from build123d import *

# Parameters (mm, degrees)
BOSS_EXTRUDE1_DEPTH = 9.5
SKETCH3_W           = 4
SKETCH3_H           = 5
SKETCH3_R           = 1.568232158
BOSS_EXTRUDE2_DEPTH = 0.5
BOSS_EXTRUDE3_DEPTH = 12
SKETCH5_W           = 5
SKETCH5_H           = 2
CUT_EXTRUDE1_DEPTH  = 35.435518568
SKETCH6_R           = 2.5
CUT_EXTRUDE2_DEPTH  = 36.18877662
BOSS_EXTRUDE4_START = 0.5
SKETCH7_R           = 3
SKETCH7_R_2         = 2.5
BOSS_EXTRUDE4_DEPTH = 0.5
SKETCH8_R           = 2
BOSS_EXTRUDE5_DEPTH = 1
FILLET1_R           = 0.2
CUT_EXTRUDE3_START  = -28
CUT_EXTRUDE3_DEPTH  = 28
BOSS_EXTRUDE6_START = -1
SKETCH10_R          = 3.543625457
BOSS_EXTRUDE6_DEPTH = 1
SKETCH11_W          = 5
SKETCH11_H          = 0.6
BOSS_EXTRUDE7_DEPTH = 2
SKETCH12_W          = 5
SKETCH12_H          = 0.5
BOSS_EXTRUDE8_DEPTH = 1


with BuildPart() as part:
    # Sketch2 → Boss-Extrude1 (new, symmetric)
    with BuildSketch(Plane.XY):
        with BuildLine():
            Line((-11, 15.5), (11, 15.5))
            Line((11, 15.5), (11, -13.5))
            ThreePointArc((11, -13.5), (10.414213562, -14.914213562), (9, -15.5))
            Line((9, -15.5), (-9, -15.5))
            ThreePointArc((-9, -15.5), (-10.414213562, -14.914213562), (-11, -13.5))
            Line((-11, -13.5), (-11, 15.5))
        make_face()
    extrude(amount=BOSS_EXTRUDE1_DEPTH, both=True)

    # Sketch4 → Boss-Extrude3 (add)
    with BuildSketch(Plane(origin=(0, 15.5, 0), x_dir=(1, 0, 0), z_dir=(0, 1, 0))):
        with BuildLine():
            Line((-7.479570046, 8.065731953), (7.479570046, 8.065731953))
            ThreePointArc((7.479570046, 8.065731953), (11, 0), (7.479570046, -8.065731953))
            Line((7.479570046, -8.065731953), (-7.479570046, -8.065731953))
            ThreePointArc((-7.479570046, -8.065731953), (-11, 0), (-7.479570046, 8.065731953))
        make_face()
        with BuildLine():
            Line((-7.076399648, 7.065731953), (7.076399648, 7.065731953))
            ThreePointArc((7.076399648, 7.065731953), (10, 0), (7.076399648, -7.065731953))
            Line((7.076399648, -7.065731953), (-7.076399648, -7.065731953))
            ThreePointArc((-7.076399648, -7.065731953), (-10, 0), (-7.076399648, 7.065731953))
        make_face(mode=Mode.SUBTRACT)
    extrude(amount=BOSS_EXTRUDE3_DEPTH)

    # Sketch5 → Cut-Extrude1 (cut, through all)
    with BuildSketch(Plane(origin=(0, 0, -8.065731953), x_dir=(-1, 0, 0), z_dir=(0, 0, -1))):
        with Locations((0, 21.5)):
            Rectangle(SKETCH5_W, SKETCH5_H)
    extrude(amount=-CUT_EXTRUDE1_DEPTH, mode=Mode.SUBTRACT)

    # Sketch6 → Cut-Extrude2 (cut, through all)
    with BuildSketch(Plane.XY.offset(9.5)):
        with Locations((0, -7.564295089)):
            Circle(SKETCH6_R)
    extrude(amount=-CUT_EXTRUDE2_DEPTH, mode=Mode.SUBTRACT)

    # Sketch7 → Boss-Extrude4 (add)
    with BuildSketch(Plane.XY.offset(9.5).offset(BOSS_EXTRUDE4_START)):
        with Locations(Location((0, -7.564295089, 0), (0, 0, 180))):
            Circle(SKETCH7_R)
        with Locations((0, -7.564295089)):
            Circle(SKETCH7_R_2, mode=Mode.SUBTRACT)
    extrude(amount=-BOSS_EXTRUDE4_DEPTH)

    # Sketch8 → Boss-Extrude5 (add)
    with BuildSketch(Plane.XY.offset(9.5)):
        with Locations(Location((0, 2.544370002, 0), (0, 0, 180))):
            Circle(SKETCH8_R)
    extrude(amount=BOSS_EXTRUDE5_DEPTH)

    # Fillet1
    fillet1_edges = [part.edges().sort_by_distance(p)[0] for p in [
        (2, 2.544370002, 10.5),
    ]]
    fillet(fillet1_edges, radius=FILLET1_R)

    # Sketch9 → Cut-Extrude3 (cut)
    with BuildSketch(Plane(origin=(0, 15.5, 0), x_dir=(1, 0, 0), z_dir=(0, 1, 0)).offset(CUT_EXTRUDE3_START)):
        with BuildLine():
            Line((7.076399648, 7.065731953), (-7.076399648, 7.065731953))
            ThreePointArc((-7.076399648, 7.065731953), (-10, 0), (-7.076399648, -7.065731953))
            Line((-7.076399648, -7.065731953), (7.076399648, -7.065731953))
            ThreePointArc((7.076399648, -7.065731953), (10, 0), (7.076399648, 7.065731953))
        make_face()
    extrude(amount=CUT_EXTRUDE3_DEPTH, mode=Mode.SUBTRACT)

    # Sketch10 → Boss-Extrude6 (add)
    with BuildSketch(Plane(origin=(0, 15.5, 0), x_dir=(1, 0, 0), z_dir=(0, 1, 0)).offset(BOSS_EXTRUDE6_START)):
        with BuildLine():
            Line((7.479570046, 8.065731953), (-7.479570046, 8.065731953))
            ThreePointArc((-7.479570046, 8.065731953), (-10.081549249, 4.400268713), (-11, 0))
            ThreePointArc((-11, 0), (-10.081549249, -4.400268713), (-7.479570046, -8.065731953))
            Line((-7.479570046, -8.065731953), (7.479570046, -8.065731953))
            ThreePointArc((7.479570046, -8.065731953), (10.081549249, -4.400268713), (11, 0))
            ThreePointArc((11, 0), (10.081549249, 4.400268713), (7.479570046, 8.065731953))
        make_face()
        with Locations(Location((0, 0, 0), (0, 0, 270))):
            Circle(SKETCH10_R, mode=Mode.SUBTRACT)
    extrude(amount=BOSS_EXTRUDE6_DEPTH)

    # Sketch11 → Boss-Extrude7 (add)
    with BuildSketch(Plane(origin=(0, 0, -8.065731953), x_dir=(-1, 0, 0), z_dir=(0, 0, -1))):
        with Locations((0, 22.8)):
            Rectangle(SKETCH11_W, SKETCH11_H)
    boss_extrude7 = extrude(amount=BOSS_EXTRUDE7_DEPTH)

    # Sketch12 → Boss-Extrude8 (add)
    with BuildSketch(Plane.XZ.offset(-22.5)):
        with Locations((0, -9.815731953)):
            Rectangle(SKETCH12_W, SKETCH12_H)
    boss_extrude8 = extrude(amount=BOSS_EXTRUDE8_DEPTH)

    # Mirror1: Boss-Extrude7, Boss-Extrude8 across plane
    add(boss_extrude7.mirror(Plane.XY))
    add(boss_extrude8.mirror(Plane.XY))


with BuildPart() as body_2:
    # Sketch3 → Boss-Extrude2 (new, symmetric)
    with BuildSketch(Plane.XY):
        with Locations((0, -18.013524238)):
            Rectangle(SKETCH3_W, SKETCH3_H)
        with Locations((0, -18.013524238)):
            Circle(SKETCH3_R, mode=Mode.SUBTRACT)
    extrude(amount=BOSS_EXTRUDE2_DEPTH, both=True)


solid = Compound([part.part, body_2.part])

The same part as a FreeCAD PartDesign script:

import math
import FreeCAD as App
import Part
import Sketcher

V = App.Vector


def edges_at(feature, points):
    """Names of the edges that pass closest to the given points."""
    edges = feature.Shape.Edges
    near = lambda p: min(range(len(edges)), key=lambda i: edges[i].distToShape(Part.Vertex(*p))[0])
    return sorted({f"Edge{near(p) + 1}" for p in points})

doc = App.newDocument("Part")
body = doc.addObject("PartDesign::Body", "Body")

# Sketch on XY plane
sketch1 = body.newObject("Sketcher::SketchObject", "Sketch")
sketch1.AttachmentSupport = (doc.getObject("XY_Plane"), [""])
sketch1.MapMode = "FlatFace"
sketch1.addGeometry([
    Part.LineSegment(V(11, 15.5, 0), V(-11, 15.5, 0)),  # 0
    Part.LineSegment(V(-11, 15.5, 0), V(-11, -13.5, 0)),  # 1
    Part.ArcOfCircle(Part.Circle(V(-9, -13.5, 0), V(0, 0, 1), 2), math.radians(-180), math.radians(-90)),  # 2
    Part.LineSegment(V(-9, -15.5, 0), V(9, -15.5, 0)),  # 3
    Part.ArcOfCircle(Part.Circle(V(9, -13.5, 0), V(0, 0, 1), 2), math.radians(-90), math.radians(0)),  # 4
    Part.LineSegment(V(11, -13.5, 0), V(11, 15.5, 0)),  # 5
], False)
sketch1.addConstraint([
    Sketcher.Constraint("Coincident", 0, 2, 1, 1),
    Sketcher.Constraint("Tangent", 1, 2, 2, 1),
    Sketcher.Constraint("Tangent", 2, 2, 3, 1),
    Sketcher.Constraint("Tangent", 3, 2, 4, 1),
    Sketcher.Constraint("Tangent", 4, 2, 5, 1),
    Sketcher.Constraint("Coincident", 5, 2, 0, 1),
    Sketcher.Constraint("Horizontal", 0),
    Sketcher.Constraint("Vertical", 1),
    Sketcher.Constraint("Horizontal", 3),
    Sketcher.Constraint("Vertical", 5),
    Sketcher.Constraint("Equal", 2, 4),
    Sketcher.Constraint("Radius", 2, 2.0),
    Sketcher.Constraint("DistanceX", 0, 2, 0, 1, 22.0),
    Sketcher.Constraint("DistanceY", 1, 2, 1, 1, 29.0),
    Sketcher.Constraint("DistanceX", 2, 3, -1, 1, 9.0),
    Sketcher.Constraint("DistanceY", 2, 3, -1, 1, 13.5),
])
pad1 = body.newObject("PartDesign::Pad", "Pad")
pad1.Profile = sketch1
pad1.Length = 19
pad1.Midplane = True

# Sketch on XZ plane
sketch2 = body.newObject("Sketcher::SketchObject", "Sketch001")
sketch2.AttachmentSupport = (doc.getObject("XZ_Plane"), [""])
sketch2.MapMode = "FlatFace"
sketch2.AttachmentOffset = App.Placement(V(0, 0, -15.5), App.Rotation())
sketch2.addGeometry([
    Part.LineSegment(V(7.47957, -8.065732, 0), V(-7.47957, -8.065732, 0)),  # 0
    Part.ArcOfCircle(Part.Circle(V(0, 0, 0), V(0, 0, 1), 11), math.radians(132.840589), math.radians(227.159411)),  # 1
    Part.LineSegment(V(-7.47957, 8.065732, 0), V(7.47957, 8.065732, 0)),  # 2
    Part.ArcOfCircle(Part.Circle(V(0, 0, 0), V(0, 0, 1), 11), math.radians(-47.159411), math.radians(47.159411)),  # 3
    Part.LineSegment(V(-7.0764, -7.065732, 0), V(7.0764, -7.065732, 0)),  # 4
    Part.ArcOfCircle(Part.Circle(V(0, 0, 0), V(0, 0, 1), 10), math.radians(-44.956781), math.radians(44.956781)),  # 5
    Part.LineSegment(V(7.0764, 7.065732, 0), V(-7.0764, 7.065732, 0)),  # 6
    Part.ArcOfCircle(Part.Circle(V(0, 0, 0), V(0, 0, 1), 10), math.radians(135.043219), math.radians(224.956781)),  # 7
], False)
sketch2.addConstraint([
    Sketcher.Constraint("Coincident", 0, 2, 1, 2),
    Sketcher.Constraint("Coincident", 1, 1, 2, 1),
    Sketcher.Constraint("Coincident", 2, 2, 3, 2),
    Sketcher.Constraint("Coincident", 3, 1, 0, 1),
    Sketcher.Constraint("Coincident", 4, 2, 5, 1),
    Sketcher.Constraint("Coincident", 5, 2, 6, 1),
    Sketcher.Constraint("Coincident", 6, 2, 7, 1),
    Sketcher.Constraint("Coincident", 7, 2, 4, 1),
    Sketcher.Constraint("Horizontal", 0),
    Sketcher.Constraint("Horizontal", 2),
    Sketcher.Constraint("Horizontal", 4),
    Sketcher.Constraint("Horizontal", 6),
    Sketcher.Constraint("Coincident", 1, 3, -1, 1),
    Sketcher.Constraint("Coincident", 3, 3, -1, 1),
    Sketcher.Constraint("Coincident", 5, 3, -1, 1),
    Sketcher.Constraint("Coincident", 7, 3, -1, 1),
    Sketcher.Constraint("Equal", 1, 3),
    Sketcher.Constraint("Equal", 5, 7),
    Sketcher.Constraint("Vertical", 0, 2, 1, 1),
    Sketcher.Constraint("Vertical", 4, 2, 5, 2),
    Sketcher.Constraint("Radius", 1, 11.0),
    Sketcher.Constraint("Radius", 5, 10.0),
    Sketcher.Constraint("DistanceY", 3, 1, 4, 2, 1.0),
    Sketcher.Constraint("DistanceX", 4, 1, 4, 2, 14.152799),
])
pad2 = body.newObject("PartDesign::Pad", "Pad001")
pad2.Profile = sketch2
pad2.Length = 12
pad2.Reversed = True

# Sketch on XY plane
sketch3 = body.newObject("Sketcher::SketchObject", "Sketch002")
sketch3.AttachmentSupport = (doc.getObject("XY_Plane"), [""])
sketch3.MapMode = "FlatFace"
sketch3.AttachmentOffset = App.Placement(V(0, 0, -8.065732), App.Rotation())
sketch3.addGeometry([
    Part.LineSegment(V(2.5, 22.5, 0), V(2.5, 20.5, 0)),
    Part.LineSegment(V(2.5, 20.5, 0), V(-2.5, 20.5, 0)),
    Part.LineSegment(V(-2.5, 20.5, 0), V(-2.5, 22.5, 0)),
    Part.LineSegment(V(-2.5, 22.5, 0), V(2.5, 22.5, 0)),
], False)
sketch3.addConstraint([
    Sketcher.Constraint("Coincident", 0, 2, 1, 1),
    Sketcher.Constraint("Coincident", 1, 2, 2, 1),
    Sketcher.Constraint("Coincident", 2, 2, 3, 1),
    Sketcher.Constraint("Coincident", 3, 2, 0, 1),
    Sketcher.Constraint("Vertical", 0),
    Sketcher.Constraint("Horizontal", 1),
    Sketcher.Constraint("Vertical", 2),
    Sketcher.Constraint("Horizontal", 3),
    Sketcher.Constraint("DistanceX", 1, 2, 1, 1, 5.0),
    Sketcher.Constraint("DistanceY", 0, 2, 0, 1, 2.0),
    Sketcher.Constraint("DistanceX", -1, 1, 0, 2, 2.5),
    Sketcher.Constraint("DistanceY", -1, 1, 0, 2, 20.5),
])
pocket1 = body.newObject("PartDesign::Pocket", "Pocket")
pocket1.Profile = sketch3
pocket1.Type = "ThroughAll"
pocket1.Reversed = True

# Sketch on XY plane
sketch4 = body.newObject("Sketcher::SketchObject", "Sketch003")
sketch4.AttachmentSupport = (doc.getObject("XY_Plane"), [""])
sketch4.MapMode = "FlatFace"
sketch4.AttachmentOffset = App.Placement(V(0, 0, 9.5), App.Rotation())
sketch4.addGeometry(Part.Circle(V(0, -7.564295, 0), V(0, 0, 1), 2.5), False)
sketch4.addConstraint([
    Sketcher.Constraint("PointOnObject", 0, 3, -2),
    Sketcher.Constraint("Diameter", 0, 5.0),
    Sketcher.Constraint("DistanceY", 0, 3, -1, 1, 7.564295),
])
pocket2 = body.newObject("PartDesign::Pocket", "Pocket001")
pocket2.Profile = sketch4
pocket2.Type = "ThroughAll"

# Sketch on XY plane
sketch5 = body.newObject("Sketcher::SketchObject", "Sketch004")
sketch5.AttachmentSupport = (doc.getObject("XY_Plane"), [""])
sketch5.MapMode = "FlatFace"
sketch5.AttachmentOffset = App.Placement(V(0, 0, 10), App.Rotation())
sketch5.addGeometry([
    Part.Circle(V(0, -7.564295, 0), V(0, 0, 1), 3),
    Part.Circle(V(0, -7.564295, 0), V(0, 0, 1), 2.5),
], False)
sketch5.addConstraint([
    Sketcher.Constraint("Coincident", 1, 3, 0, 3),
    Sketcher.Constraint("PointOnObject", 0, 3, -2),
    Sketcher.Constraint("Diameter", 0, 6.0),
    Sketcher.Constraint("Diameter", 1, 5.0),
    Sketcher.Constraint("DistanceY", 0, 3, -1, 1, 7.564295),
])
pad3 = body.newObject("PartDesign::Pad", "Pad002")
pad3.Profile = sketch5
pad3.Length = 0.5
pad3.Reversed = True

# Sketch on XY plane
sketch6 = body.newObject("Sketcher::SketchObject", "Sketch005")
sketch6.AttachmentSupport = (doc.getObject("XY_Plane"), [""])
sketch6.MapMode = "FlatFace"
sketch6.AttachmentOffset = App.Placement(V(0, 0, 9.5), App.Rotation())
sketch6.addGeometry(Part.Circle(V(0, 2.54437, 0), V(0, 0, 1), 2), False)
sketch6.addConstraint([
    Sketcher.Constraint("PointOnObject", 0, 3, -2),
    Sketcher.Constraint("Diameter", 0, 4.0),
    Sketcher.Constraint("DistanceY", -1, 1, 0, 3, 2.54437),
])
pad4 = body.newObject("PartDesign::Pad", "Pad003")
pad4.Profile = sketch6
pad4.Length = 1
doc.recompute()

fillet = body.newObject("PartDesign::Fillet", "Fillet")
fillet.Base = (pad4, edges_at(pad4, [(2, 2.544, 10.5)]))
fillet.Radius = 0.2

# Sketch on XZ plane
sketch7 = body.newObject("Sketcher::SketchObject", "Sketch006")
sketch7.AttachmentSupport = (doc.getObject("XZ_Plane"), [""])
sketch7.MapMode = "FlatFace"
sketch7.AttachmentOffset = App.Placement(V(0, 0, 12.5), App.Rotation())
sketch7.addGeometry([
    Part.LineSegment(V(7.0764, -7.065732, 0), V(-7.0764, -7.065732, 0)),
    Part.ArcOfCircle(Part.Circle(V(0, 0, 0), V(0, 0, 1), 10), math.radians(135.043219), math.radians(224.956781)),
    Part.LineSegment(V(-7.0764, 7.065732, 0), V(7.0764, 7.065732, 0)),
    Part.ArcOfCircle(Part.Circle(V(0, 0, 0), V(0, 0, 1), 10), math.radians(-44.956781), math.radians(44.956781)),
], False)
sketch7.addConstraint([
    Sketcher.Constraint("Coincident", 0, 2, 1, 2),
    Sketcher.Constraint("Coincident", 1, 1, 2, 1),
    Sketcher.Constraint("Coincident", 2, 2, 3, 2),
    Sketcher.Constraint("Coincident", 3, 1, 0, 1),
    Sketcher.Constraint("Horizontal", 0),
    Sketcher.Constraint("Horizontal", 2),
    Sketcher.Constraint("Coincident", 1, 3, -1, 1),
    Sketcher.Constraint("Coincident", 3, 3, -1, 1),
    Sketcher.Constraint("Equal", 1, 3),
    Sketcher.Constraint("Vertical", 0, 2, 1, 1),
    Sketcher.Constraint("Radius", 1, 10.0),
    Sketcher.Constraint("DistanceX", 0, 2, 0, 1, 14.152799),
])
pocket3 = body.newObject("PartDesign::Pocket", "Pocket002")
pocket3.Profile = sketch7
pocket3.Length = 28

# Sketch on XZ plane
sketch8 = body.newObject("Sketcher::SketchObject", "Sketch007")
sketch8.AttachmentSupport = (doc.getObject("XZ_Plane"), [""])
sketch8.MapMode = "FlatFace"
sketch8.AttachmentOffset = App.Placement(V(0, 0, -14.5), App.Rotation())
sketch8.addGeometry([
    Part.LineSegment(V(7.47957, -8.065732, 0), V(-7.47957, -8.065732, 0)),  # 0
    Part.ArcOfCircle(Part.Circle(V(0, 0, 0), V(0, 0, 1), 11), math.radians(180), math.radians(227.159411)),  # 1
    Part.ArcOfCircle(Part.Circle(V(0, 0, 0), V(0, 0, 1), 11), math.radians(132.840589), math.radians(180)),  # 2
    Part.LineSegment(V(-7.47957, 8.065732, 0), V(7.47957, 8.065732, 0)),  # 3
    Part.ArcOfCircle(Part.Circle(V(0, 0, 0), V(0, 0, 1), 11), math.radians(0), math.radians(47.159411)),  # 4
    Part.ArcOfCircle(Part.Circle(V(0, 0, 0), V(0, 0, 1), 11), math.radians(-47.159411), math.radians(0)),  # 5
    Part.Circle(V(0, 0, 0), V(0, 0, 1), 3.543625),  # 6
], False)
sketch8.addConstraint([
    Sketcher.Constraint("Coincident", 0, 2, 1, 2),
    Sketcher.Constraint("Tangent", 1, 1, 2, 2),
    Sketcher.Constraint("Coincident", 2, 1, 3, 1),
    Sketcher.Constraint("Coincident", 3, 2, 4, 2),
    Sketcher.Constraint("Tangent", 4, 1, 5, 2),
    Sketcher.Constraint("Coincident", 5, 1, 0, 1),
    Sketcher.Constraint("Horizontal", 0),
    Sketcher.Constraint("Horizontal", 3),
    Sketcher.Constraint("Coincident", 1, 3, -1, 1),
    Sketcher.Constraint("Coincident", 4, 3, -1, 1),
    Sketcher.Constraint("Coincident", 6, 3, -1, 1),
    Sketcher.Constraint("Equal", 1, 2),
    Sketcher.Constraint("Equal", 2, 4),
    Sketcher.Constraint("Equal", 4, 5),
    Sketcher.Constraint("PointOnObject", 1, 1, -1),
    Sketcher.Constraint("PointOnObject", 4, 1, -1),
    Sketcher.Constraint("Vertical", 0, 2, 2, 1),
    Sketcher.Constraint("Radius", 1, 11.0),
    Sketcher.Constraint("Diameter", 6, 7.087251),
    Sketcher.Constraint("DistanceX", 0, 2, 0, 1, 14.95914),
])
pad5 = body.newObject("PartDesign::Pad", "Pad004")
pad5.Profile = sketch8
pad5.Length = 1
pad5.Reversed = True

# Sketch on XY plane
sketch9 = body.newObject("Sketcher::SketchObject", "Sketch008")
sketch9.AttachmentSupport = (doc.getObject("XY_Plane"), [""])
sketch9.MapMode = "FlatFace"
sketch9.AttachmentOffset = App.Placement(V(0, 0, -8.065732), App.Rotation())
sketch9.addGeometry([
    Part.LineSegment(V(2.5, 23.1, 0), V(2.5, 22.5, 0)),
    Part.LineSegment(V(2.5, 22.5, 0), V(-2.5, 22.5, 0)),
    Part.LineSegment(V(-2.5, 22.5, 0), V(-2.5, 23.1, 0)),
    Part.LineSegment(V(-2.5, 23.1, 0), V(2.5, 23.1, 0)),
], False)
sketch9.addConstraint([
    Sketcher.Constraint("Coincident", 0, 2, 1, 1),
    Sketcher.Constraint("Coincident", 1, 2, 2, 1),
    Sketcher.Constraint("Coincident", 2, 2, 3, 1),
    Sketcher.Constraint("Coincident", 3, 2, 0, 1),
    Sketcher.Constraint("Vertical", 0),
    Sketcher.Constraint("Horizontal", 1),
    Sketcher.Constraint("Vertical", 2),
    Sketcher.Constraint("Horizontal", 3),
    Sketcher.Constraint("DistanceX", 1, 2, 1, 1, 5.0),
    Sketcher.Constraint("DistanceY", 0, 2, 0, 1, 0.6),
    Sketcher.Constraint("DistanceX", -1, 1, 0, 2, 2.5),
    Sketcher.Constraint("DistanceY", -1, 1, 0, 2, 22.5),
])
pad6 = body.newObject("PartDesign::Pad", "Pad005")
pad6.Profile = sketch9
pad6.Length = 2
pad6.Reversed = True

# Sketch on XZ plane
sketch10 = body.newObject("Sketcher::SketchObject", "Sketch009")
sketch10.AttachmentSupport = (doc.getObject("XZ_Plane"), [""])
sketch10.MapMode = "FlatFace"
sketch10.AttachmentOffset = App.Placement(V(0, 0, -22.5), App.Rotation())
sketch10.addGeometry([
    Part.LineSegment(V(-2.5, -9.565732, 0), V(-2.5, -10.065732, 0)),
    Part.LineSegment(V(-2.5, -10.065732, 0), V(2.5, -10.065732, 0)),
    Part.LineSegment(V(2.5, -10.065732, 0), V(2.5, -9.565732, 0)),
    Part.LineSegment(V(2.5, -9.565732, 0), V(-2.5, -9.565732, 0)),
], False)
sketch10.addConstraint([
    Sketcher.Constraint("Coincident", 0, 2, 1, 1),
    Sketcher.Constraint("Coincident", 1, 2, 2, 1),
    Sketcher.Constraint("Coincident", 2, 2, 3, 1),
    Sketcher.Constraint("Coincident", 3, 2, 0, 1),
    Sketcher.Constraint("Vertical", 0),
    Sketcher.Constraint("Horizontal", 1),
    Sketcher.Constraint("Vertical", 2),
    Sketcher.Constraint("Horizontal", 3),
    Sketcher.Constraint("DistanceX", 1, 1, 1, 2, 5.0),
    Sketcher.Constraint("DistanceY", 0, 2, 0, 1, 0.5),
    Sketcher.Constraint("DistanceX", 0, 2, -1, 1, 2.5),
    Sketcher.Constraint("DistanceY", 0, 2, -1, 1, 10.065732),
])
pad7 = body.newObject("PartDesign::Pad", "Pad006")
pad7.Profile = sketch10
pad7.Length = 1
doc.recompute()

mirrored = body.newObject("PartDesign::Mirrored", "Mirrored")
mirrored.Originals = [pad6, pad7]
mirrored.MirrorPlane = (doc.getObject("XY_Plane"), [""])
body.Tip = mirrored
body2 = doc.addObject("PartDesign::Body", "Body001")

# Sketch on XY plane
sketch11 = body2.newObject("Sketcher::SketchObject", "Sketch010")
sketch11.AttachmentSupport = (doc.getObject("XY_Plane001"), [""])
sketch11.MapMode = "FlatFace"
sketch11.addGeometry([
    Part.LineSegment(V(-2, -15.513524, 0), V(-2, -20.513524, 0)),  # 0
    Part.LineSegment(V(-2, -20.513524, 0), V(2, -20.513524, 0)),  # 1
    Part.LineSegment(V(2, -20.513524, 0), V(2, -15.513524, 0)),  # 2
    Part.LineSegment(V(2, -15.513524, 0), V(-2, -15.513524, 0)),  # 3
    Part.Circle(V(0, -18.013524, 0), V(0, 0, 1), 1.568232),  # 4
], False)
sketch11.addConstraint([
    Sketcher.Constraint("Coincident", 0, 2, 1, 1),
    Sketcher.Constraint("Coincident", 1, 2, 2, 1),
    Sketcher.Constraint("Coincident", 2, 2, 3, 1),
    Sketcher.Constraint("Coincident", 3, 2, 0, 1),
    Sketcher.Constraint("Vertical", 0),
    Sketcher.Constraint("Horizontal", 1),
    Sketcher.Constraint("Vertical", 2),
    Sketcher.Constraint("Horizontal", 3),
    Sketcher.Constraint("PointOnObject", 4, 3, -2),
    Sketcher.Constraint("DistanceX", 1, 1, 1, 2, 4.0),
    Sketcher.Constraint("DistanceY", 0, 2, 0, 1, 5.0),
    Sketcher.Constraint("DistanceX", 0, 2, -1, 1, 2.0),
    Sketcher.Constraint("DistanceY", 0, 2, 4, 3, 2.5),
    Sketcher.Constraint("Diameter", 4, 3.136464),
    Sketcher.Constraint("DistanceY", 4, 3, -1, 1, 18.013524),
])
pad8 = body2.newObject("PartDesign::Pad", "Pad007")
pad8.Profile = sketch11
pad8.Length = 1
pad8.Midplane = True

doc.recompute()
